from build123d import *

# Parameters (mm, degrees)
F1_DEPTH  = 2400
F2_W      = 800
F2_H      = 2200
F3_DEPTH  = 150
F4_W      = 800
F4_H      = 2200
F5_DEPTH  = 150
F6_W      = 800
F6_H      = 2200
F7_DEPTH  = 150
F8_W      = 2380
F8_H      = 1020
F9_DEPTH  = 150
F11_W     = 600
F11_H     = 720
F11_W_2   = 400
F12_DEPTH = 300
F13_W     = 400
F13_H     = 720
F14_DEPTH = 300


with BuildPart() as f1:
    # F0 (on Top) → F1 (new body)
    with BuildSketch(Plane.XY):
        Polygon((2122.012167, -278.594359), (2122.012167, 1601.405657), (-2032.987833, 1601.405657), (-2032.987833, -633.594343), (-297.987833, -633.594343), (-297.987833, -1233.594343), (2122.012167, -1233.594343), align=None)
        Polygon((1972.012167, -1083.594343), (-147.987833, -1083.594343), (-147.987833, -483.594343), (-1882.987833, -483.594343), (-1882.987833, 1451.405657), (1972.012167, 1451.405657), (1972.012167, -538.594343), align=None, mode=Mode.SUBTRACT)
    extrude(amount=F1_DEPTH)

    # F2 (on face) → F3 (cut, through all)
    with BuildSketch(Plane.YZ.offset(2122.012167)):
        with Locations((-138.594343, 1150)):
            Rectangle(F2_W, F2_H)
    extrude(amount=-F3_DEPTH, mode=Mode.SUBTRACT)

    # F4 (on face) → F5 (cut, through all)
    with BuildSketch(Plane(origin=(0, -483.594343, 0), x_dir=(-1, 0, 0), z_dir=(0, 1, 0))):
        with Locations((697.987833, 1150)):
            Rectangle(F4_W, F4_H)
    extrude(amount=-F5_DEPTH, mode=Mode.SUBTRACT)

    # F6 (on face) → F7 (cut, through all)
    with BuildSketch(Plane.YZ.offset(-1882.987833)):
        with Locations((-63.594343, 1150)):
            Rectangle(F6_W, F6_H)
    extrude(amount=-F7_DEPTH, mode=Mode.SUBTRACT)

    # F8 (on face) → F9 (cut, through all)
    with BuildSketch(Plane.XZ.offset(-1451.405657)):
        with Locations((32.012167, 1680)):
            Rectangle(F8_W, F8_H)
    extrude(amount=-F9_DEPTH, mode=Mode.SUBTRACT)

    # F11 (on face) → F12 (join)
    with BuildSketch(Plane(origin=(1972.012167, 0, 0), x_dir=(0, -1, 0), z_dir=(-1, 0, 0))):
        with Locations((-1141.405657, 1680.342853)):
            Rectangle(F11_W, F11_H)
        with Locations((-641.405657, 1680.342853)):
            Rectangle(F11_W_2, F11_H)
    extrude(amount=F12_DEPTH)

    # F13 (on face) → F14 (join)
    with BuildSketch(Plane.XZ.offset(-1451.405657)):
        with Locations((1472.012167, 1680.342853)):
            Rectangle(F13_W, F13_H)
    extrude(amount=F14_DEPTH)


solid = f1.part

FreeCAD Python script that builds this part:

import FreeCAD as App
import Part
import Sketcher
from FreeCAD import Vector


def add_polygon(sketch, points):
    """Adds a closed chain of lines whose ends are joined by coincident constraints."""
    first, n = sketch.GeometryCount, len(points)
    for a, b in zip(points, points[1:] + points[:1]):
        sketch.addGeometry(Part.LineSegment(App.Vector(*a, 0), App.Vector(*b, 0)), False)
    for i in range(n):
        sketch.addConstraint(Sketcher.Constraint("Coincident", first + i, 2, first + (i + 1) % n, 1))

doc = App.newDocument("Part")
params = doc.addObject("Spreadsheet::Sheet", "Params")
for row, (alias, value) in enumerate([
    ("sketch1_width", "4155 mm"),
    ("sketch1_width2", "1735 mm"),
    ("sketch1_width3", "2120 mm"),
    ("sketch1_height", "2235 mm"),
    ("sketch1_height2", "600 mm"),
    ("pad1_length", "2400 mm"),
    ("sketch2_width", "800 mm"),
    ("sketch2_height", "2200 mm"),
    ("pocket1_length", "150 mm"),
    ("sketch3_width", "800 mm"),
    ("sketch3_height", "2200 mm"),
    ("sketch4_width", "800 mm"),
    ("sketch4_height", "2200 mm"),
    ("sketch5_width", "2380 mm"),
    ("sketch5_height", "1020 mm"),
    ("sketch6_width", "1000 mm"),
    ("sketch6_height", "720 mm"),
    ("pad2_length", "300 mm"),
    ("sketch7_width", "400 mm"),
    ("sketch7_height", "720 mm"),
    ("pad3_length", "300 mm"),
], start=1):
    params.set(f"A{row}", alias)
    params.set(f"B{row}", "=" + value)
    params.setAlias(f"B{row}", alias)

body = doc.addObject("PartDesign::Body", "Body")

sketch1 = doc.addObject("Sketcher::SketchObject", "Sketch")
body.addObject(sketch1)
sketch1.AttachmentSupport = (doc.XY_Plane, [""])
sketch1.MapMode = "FlatFace"
add_polygon(sketch1, [(2122, 1601), (-2033, 1601), (-2033, -634), (-298, -634), (-298, -1234), (2122, -1234)])
add_polygon(sketch1, [(1972, 1451), (1972, -1084), (-148, -1084), (-148, -484), (-1883, -484), (-1883, 1451)])
sketch1.addConstraint(Sketcher.Constraint("Horizontal", 0))
sketch1.addConstraint(Sketcher.Constraint("Vertical", 1))
sketch1.addConstraint(Sketcher.Constraint("Horizontal", 2))
sketch1.addConstraint(Sketcher.Constraint("Vertical", 3))
sketch1.addConstraint(Sketcher.Constraint("Horizontal", 4))
sketch1.addConstraint(Sketcher.Constraint("Vertical", 5))
sketch1.addConstraint(Sketcher.Constraint("Vertical", 6))
sketch1.addConstraint(Sketcher.Constraint("Horizontal", 7))
sketch1.addConstraint(Sketcher.Constraint("Vertical", 8))
sketch1.addConstraint(Sketcher.Constraint("Horizontal", 9))
sketch1.addConstraint(Sketcher.Constraint("Vertical", 10))
sketch1.addConstraint(Sketcher.Constraint("Horizontal", 11))
sketch1.addConstraint(Sketcher.Constraint("Equal", 2, 9))
sketch1.addConstraint(Sketcher.Constraint("Equal", 3, 8))
sketch1.addConstraint(Sketcher.Constraint("DistanceX", 0, 2, 0, 1, 4155.0))
sketch1.addConstraint(Sketcher.Constraint("DistanceX", 2, 1, 2, 2, 1735.0))
sketch1.addConstraint(Sketcher.Constraint("DistanceX", 7, 2, 7, 1, 2120.0))
sketch1.addConstraint(Sketcher.Constraint("DistanceY", 1, 2, 1, 1, 2235.0))
sketch1.addConstraint(Sketcher.Constraint("DistanceY", 3, 2, 3, 1, 600.0))
sketch1.addConstraint(Sketcher.Constraint("DistanceY", 6, 2, 6, 1, 2535.0))
sketch1.addConstraint(Sketcher.Constraint("DistanceX", 6, 2, 4, 2, 150.0))
sketch1.addConstraint(Sketcher.Constraint("DistanceY", 4, 2, 6, 2, 150.0))
sketch1.addConstraint(Sketcher.Constraint("DistanceX", 0, 2, -1, 1, 2032.987833))
sketch1.addConstraint(Sketcher.Constraint("DistanceY", -1, 1, 0, 2, 1601.405657))
sketch1.setExpression("Constraints[26]", "Params.sketch1_width")
sketch1.setExpression("Constraints[27]", "Params.sketch1_width2")
sketch1.setExpression("Constraints[28]", "Params.sketch1_width3")
sketch1.setExpression("Constraints[29]", "Params.sketch1_height")
sketch1.setExpression("Constraints[30]", "Params.sketch1_height2")
pad1 = doc.addObject("PartDesign::Pad", "Pad")
body.addObject(pad1)
pad1.Profile = sketch1
pad1.setExpression("Length", "Params.pad1_length")

sketch2 = doc.addObject("Sketcher::SketchObject", "Sketch001")
body.addObject(sketch2)
sketch2.AttachmentSupport = (doc.YZ_Plane, [""])
sketch2.MapMode = "FlatFace"
sketch2.AttachmentOffset = App.Placement(Vector(0, 0, 2122.012167), App.Rotation())
add_polygon(sketch2, [(-539, 2250), (-539, 50), (261, 50), (261, 2250)])
sketch2.addConstraint(Sketcher.Constraint("Vertical", 0))
sketch2.addConstraint(Sketcher.Constraint("Horizontal", 1))
sketch2.addConstraint(Sketcher.Constraint("Vertical", 2))
sketch2.addConstraint(Sketcher.Constraint("Horizontal", 3))
sketch2.addConstraint(Sketcher.Constraint("DistanceX", 1, 1, 1, 2, 800.0))
sketch2.addConstraint(Sketcher.Constraint("DistanceY", 0, 2, 0, 1, 2200.0))
sketch2.addConstraint(Sketcher.Constraint("DistanceY", -1, 1, 0, 2, 50.0))
sketch2.addConstraint(Sketcher.Constraint("DistanceX", 0, 2, -1, 1, 538.594343))
sketch2.setExpression("Constraints[8]", "Params.sketch2_width")
sketch2.setExpression("Constraints[9]", "Params.sketch2_height")
pocket1 = doc.addObject("PartDesign::Pocket", "Pocket")
body.addObject(pocket1)
pocket1.Profile = sketch2
pocket1.setExpression("Length", "Params.pocket1_length")

sketch3 = doc.addObject("Sketcher::SketchObject", "Sketch002")
body.addObject(sketch3)
sketch3.AttachmentSupport = (doc.XZ_Plane, [""])
sketch3.MapMode = "FlatFace"
sketch3.AttachmentOffset = App.Placement(Vector(0, 0, 483.594343), App.Rotation())
add_polygon(sketch3, [(-298, 2250), (-298, 50), (-1098, 50), (-1098, 2250)])
sketch3.addConstraint(Sketcher.Constraint("Vertical", 0))
sketch3.addConstraint(Sketcher.Constraint("Horizontal", 1))
sketch3.addConstraint(Sketcher.Constraint("Vertical", 2))
sketch3.addConstraint(Sketcher.Constraint("Horizontal", 3))
sketch3.addConstraint(Sketcher.Constraint("DistanceX", 1, 2, 1, 1, 800.0))
sketch3.addConstraint(Sketcher.Constraint("DistanceY", 0, 2, 0, 1, 2200.0))
sketch3.addConstraint(Sketcher.Constraint("DistanceY", -1, 1, 0, 2, 50.0))
sketch3.addConstraint(Sketcher.Constraint("DistanceX", 0, 2, -1, 1, 297.987833))
sketch3.setExpression("Constraints[8]", "Params.sketch3_width")
sketch3.setExpression("Constraints[9]", "Params.sketch3_height")
pocket2 = doc.addObject("PartDesign::Pocket", "Pocket001")
body.addObject(pocket2)
pocket2.Profile = sketch3
pocket2.Type = "ThroughAll"
pocket2.Reversed = True

sketch4 = doc.addObject("Sketcher::SketchObject", "Sketch003")
body.addObject(sketch4)
sketch4.AttachmentSupport = (doc.YZ_Plane, [""])
sketch4.MapMode = "FlatFace"
sketch4.AttachmentOffset = App.Placement(Vector(0, 0, -1882.987833), App.Rotation())
add_polygon(sketch4, [(-464, 2250), (-464, 50), (336, 50), (336, 2250)])
sketch4.addConstraint(Sketcher.Constraint("Vertical", 0))
sketch4.addConstraint(Sketcher.Constraint("Horizontal", 1))
sketch4.addConstraint(Sketcher.Constraint("Vertical", 2))
sketch4.addConstraint(Sketcher.Constraint("Horizontal", 3))
sketch4.addConstraint(Sketcher.Constraint("DistanceX", 1, 1, 1, 2, 800.0))
sketch4.addConstraint(Sketcher.Constraint("DistanceY", 0, 2, 0, 1, 2200.0))
sketch4.addConstraint(Sketcher.Constraint("DistanceY", -1, 1, 0, 2, 50.0))
sketch4.addConstraint(Sketcher.Constraint("DistanceX", 0, 2, -1, 1, 463.594343))
sketch4.setExpression("Constraints[8]", "Params.sketch4_width")
sketch4.setExpression("Constraints[9]", "Params.sketch4_height")
pocket3 = doc.addObject("PartDesign::Pocket", "Pocket002")
body.addObject(pocket3)
pocket3.Profile = sketch4
pocket3.Type = "ThroughAll"

sketch5 = doc.addObject("Sketcher::SketchObject", "Sketch004")
body.addObject(sketch5)
sketch5.AttachmentSupport = (doc.XZ_Plane, [""])
sketch5.MapMode = "FlatFace"
sketch5.AttachmentOffset = App.Placement(Vector(0, 0, -1451.405657), App.Rotation())
add_polygon(sketch5, [(-1158, 2190), (-1158, 1170), (1222, 1170), (1222, 2190)])
sketch5.addConstraint(Sketcher.Constraint("Vertical", 0))
sketch5.addConstraint(Sketcher.Constraint("Horizontal", 1))
sketch5.addConstraint(Sketcher.Constraint("Vertical", 2))
sketch5.addConstraint(Sketcher.Constraint("Horizontal", 3))
sketch5.addConstraint(Sketcher.Constraint("DistanceX", 1, 1, 1, 2, 2380.0))
sketch5.addConstraint(Sketcher.Constraint("DistanceY", 0, 2, 0, 1, 1020.0))
sketch5.addConstraint(Sketcher.Constraint("DistanceY", -1, 1, 0, 2, 1170.0))
sketch5.addConstraint(Sketcher.Constraint("DistanceX", 0, 2, -1, 1, 1157.987833))
sketch5.setExpression("Constraints[8]", "Params.sketch5_width")
sketch5.setExpression("Constraints[9]", "Params.sketch5_height")
pocket4 = doc.addObject("PartDesign::Pocket", "Pocket003")
body.addObject(pocket4)
pocket4.Profile = sketch5
pocket4.Type = "ThroughAll"

sketch6 = doc.addObject("Sketcher::SketchObject", "Sketch005")
body.addObject(sketch6)
sketch6.AttachmentSupport = (doc.YZ_Plane, [""])
sketch6.MapMode = "FlatFace"
sketch6.AttachmentOffset = App.Placement(Vector(0, 0, 1972.012167), App.Rotation())
add_polygon(sketch6, [(1441, 2040), (1441, 1320), (441, 1320), (441, 2040)])
sketch6.addConstraint(Sketcher.Constraint("Vertical", 0))
sketch6.addConstraint(Sketcher.Constraint("Horizontal", 1))
sketch6.addConstraint(Sketcher.Constraint("Vertical", 2))
sketch6.addConstraint(Sketcher.Constraint("Horizontal", 3))
sketch6.addConstraint(Sketcher.Constraint("DistanceX", 1, 2, 1, 1, 1000.0))
sketch6.addConstraint(Sketcher.Constraint("DistanceY", 0, 2, 0, 1, 720.0))
sketch6.addConstraint(Sketcher.Constraint("DistanceX", -1, 1, 0, 2, 1441.405657))
sketch6.addConstraint(Sketcher.Constraint("DistanceY", -1, 1, 0, 2, 1320.342853))
sketch6.setExpression("Constraints[8]", "Params.sketch6_width")
sketch6.setExpression("Constraints[9]", "Params.sketch6_height")
pad2 = doc.addObject("PartDesign::Pad", "Pad001")
body.addObject(pad2)
pad2.Profile = sketch6
pad2.setExpression("Length", "Params.pad2_length")
pad2.Reversed = True

sketch7 = doc.addObject("Sketcher::SketchObject", "Sketch006")
body.addObject(sketch7)
sketch7.AttachmentSupport = (doc.XZ_Plane, [""])
sketch7.MapMode = "FlatFace"
sketch7.AttachmentOffset = App.Placement(Vector(0, 0, -1451.405657), App.Rotation())
add_polygon(sketch7, [(1272, 2040), (1272, 1320), (1672, 1320), (1672, 2040)])
sketch7.addConstraint(Sketcher.Constraint("Vertical", 0))
sketch7.addConstraint(Sketcher.Constraint("Horizontal", 1))
sketch7.addConstraint(Sketcher.Constraint("Vertical", 2))
sketch7.addConstraint(Sketcher.Constraint("Horizontal", 3))
sketch7.addConstraint(Sketcher.Constraint("DistanceX", 1, 1, 1, 2, 400.0))
sketch7.addConstraint(Sketcher.Constraint("DistanceY", 0, 2, 0, 1, 720.0))
sketch7.addConstraint(Sketcher.Constraint("DistanceX", -1, 1, 0, 2, 1272.012167))
sketch7.addConstraint(Sketcher.Constraint("DistanceY", -1, 1, 0, 2, 1320.342853))
sketch7.setExpression("Constraints[8]", "Params.sketch7_width")
sketch7.setExpression("Constraints[9]", "Params.sketch7_height")
pad3 = doc.addObject("PartDesign::Pad", "Pad002")
body.addObject(pad3)
pad3.Profile = sketch7
pad3.setExpression("Length", "Params.pad3_length")

doc.recompute()
